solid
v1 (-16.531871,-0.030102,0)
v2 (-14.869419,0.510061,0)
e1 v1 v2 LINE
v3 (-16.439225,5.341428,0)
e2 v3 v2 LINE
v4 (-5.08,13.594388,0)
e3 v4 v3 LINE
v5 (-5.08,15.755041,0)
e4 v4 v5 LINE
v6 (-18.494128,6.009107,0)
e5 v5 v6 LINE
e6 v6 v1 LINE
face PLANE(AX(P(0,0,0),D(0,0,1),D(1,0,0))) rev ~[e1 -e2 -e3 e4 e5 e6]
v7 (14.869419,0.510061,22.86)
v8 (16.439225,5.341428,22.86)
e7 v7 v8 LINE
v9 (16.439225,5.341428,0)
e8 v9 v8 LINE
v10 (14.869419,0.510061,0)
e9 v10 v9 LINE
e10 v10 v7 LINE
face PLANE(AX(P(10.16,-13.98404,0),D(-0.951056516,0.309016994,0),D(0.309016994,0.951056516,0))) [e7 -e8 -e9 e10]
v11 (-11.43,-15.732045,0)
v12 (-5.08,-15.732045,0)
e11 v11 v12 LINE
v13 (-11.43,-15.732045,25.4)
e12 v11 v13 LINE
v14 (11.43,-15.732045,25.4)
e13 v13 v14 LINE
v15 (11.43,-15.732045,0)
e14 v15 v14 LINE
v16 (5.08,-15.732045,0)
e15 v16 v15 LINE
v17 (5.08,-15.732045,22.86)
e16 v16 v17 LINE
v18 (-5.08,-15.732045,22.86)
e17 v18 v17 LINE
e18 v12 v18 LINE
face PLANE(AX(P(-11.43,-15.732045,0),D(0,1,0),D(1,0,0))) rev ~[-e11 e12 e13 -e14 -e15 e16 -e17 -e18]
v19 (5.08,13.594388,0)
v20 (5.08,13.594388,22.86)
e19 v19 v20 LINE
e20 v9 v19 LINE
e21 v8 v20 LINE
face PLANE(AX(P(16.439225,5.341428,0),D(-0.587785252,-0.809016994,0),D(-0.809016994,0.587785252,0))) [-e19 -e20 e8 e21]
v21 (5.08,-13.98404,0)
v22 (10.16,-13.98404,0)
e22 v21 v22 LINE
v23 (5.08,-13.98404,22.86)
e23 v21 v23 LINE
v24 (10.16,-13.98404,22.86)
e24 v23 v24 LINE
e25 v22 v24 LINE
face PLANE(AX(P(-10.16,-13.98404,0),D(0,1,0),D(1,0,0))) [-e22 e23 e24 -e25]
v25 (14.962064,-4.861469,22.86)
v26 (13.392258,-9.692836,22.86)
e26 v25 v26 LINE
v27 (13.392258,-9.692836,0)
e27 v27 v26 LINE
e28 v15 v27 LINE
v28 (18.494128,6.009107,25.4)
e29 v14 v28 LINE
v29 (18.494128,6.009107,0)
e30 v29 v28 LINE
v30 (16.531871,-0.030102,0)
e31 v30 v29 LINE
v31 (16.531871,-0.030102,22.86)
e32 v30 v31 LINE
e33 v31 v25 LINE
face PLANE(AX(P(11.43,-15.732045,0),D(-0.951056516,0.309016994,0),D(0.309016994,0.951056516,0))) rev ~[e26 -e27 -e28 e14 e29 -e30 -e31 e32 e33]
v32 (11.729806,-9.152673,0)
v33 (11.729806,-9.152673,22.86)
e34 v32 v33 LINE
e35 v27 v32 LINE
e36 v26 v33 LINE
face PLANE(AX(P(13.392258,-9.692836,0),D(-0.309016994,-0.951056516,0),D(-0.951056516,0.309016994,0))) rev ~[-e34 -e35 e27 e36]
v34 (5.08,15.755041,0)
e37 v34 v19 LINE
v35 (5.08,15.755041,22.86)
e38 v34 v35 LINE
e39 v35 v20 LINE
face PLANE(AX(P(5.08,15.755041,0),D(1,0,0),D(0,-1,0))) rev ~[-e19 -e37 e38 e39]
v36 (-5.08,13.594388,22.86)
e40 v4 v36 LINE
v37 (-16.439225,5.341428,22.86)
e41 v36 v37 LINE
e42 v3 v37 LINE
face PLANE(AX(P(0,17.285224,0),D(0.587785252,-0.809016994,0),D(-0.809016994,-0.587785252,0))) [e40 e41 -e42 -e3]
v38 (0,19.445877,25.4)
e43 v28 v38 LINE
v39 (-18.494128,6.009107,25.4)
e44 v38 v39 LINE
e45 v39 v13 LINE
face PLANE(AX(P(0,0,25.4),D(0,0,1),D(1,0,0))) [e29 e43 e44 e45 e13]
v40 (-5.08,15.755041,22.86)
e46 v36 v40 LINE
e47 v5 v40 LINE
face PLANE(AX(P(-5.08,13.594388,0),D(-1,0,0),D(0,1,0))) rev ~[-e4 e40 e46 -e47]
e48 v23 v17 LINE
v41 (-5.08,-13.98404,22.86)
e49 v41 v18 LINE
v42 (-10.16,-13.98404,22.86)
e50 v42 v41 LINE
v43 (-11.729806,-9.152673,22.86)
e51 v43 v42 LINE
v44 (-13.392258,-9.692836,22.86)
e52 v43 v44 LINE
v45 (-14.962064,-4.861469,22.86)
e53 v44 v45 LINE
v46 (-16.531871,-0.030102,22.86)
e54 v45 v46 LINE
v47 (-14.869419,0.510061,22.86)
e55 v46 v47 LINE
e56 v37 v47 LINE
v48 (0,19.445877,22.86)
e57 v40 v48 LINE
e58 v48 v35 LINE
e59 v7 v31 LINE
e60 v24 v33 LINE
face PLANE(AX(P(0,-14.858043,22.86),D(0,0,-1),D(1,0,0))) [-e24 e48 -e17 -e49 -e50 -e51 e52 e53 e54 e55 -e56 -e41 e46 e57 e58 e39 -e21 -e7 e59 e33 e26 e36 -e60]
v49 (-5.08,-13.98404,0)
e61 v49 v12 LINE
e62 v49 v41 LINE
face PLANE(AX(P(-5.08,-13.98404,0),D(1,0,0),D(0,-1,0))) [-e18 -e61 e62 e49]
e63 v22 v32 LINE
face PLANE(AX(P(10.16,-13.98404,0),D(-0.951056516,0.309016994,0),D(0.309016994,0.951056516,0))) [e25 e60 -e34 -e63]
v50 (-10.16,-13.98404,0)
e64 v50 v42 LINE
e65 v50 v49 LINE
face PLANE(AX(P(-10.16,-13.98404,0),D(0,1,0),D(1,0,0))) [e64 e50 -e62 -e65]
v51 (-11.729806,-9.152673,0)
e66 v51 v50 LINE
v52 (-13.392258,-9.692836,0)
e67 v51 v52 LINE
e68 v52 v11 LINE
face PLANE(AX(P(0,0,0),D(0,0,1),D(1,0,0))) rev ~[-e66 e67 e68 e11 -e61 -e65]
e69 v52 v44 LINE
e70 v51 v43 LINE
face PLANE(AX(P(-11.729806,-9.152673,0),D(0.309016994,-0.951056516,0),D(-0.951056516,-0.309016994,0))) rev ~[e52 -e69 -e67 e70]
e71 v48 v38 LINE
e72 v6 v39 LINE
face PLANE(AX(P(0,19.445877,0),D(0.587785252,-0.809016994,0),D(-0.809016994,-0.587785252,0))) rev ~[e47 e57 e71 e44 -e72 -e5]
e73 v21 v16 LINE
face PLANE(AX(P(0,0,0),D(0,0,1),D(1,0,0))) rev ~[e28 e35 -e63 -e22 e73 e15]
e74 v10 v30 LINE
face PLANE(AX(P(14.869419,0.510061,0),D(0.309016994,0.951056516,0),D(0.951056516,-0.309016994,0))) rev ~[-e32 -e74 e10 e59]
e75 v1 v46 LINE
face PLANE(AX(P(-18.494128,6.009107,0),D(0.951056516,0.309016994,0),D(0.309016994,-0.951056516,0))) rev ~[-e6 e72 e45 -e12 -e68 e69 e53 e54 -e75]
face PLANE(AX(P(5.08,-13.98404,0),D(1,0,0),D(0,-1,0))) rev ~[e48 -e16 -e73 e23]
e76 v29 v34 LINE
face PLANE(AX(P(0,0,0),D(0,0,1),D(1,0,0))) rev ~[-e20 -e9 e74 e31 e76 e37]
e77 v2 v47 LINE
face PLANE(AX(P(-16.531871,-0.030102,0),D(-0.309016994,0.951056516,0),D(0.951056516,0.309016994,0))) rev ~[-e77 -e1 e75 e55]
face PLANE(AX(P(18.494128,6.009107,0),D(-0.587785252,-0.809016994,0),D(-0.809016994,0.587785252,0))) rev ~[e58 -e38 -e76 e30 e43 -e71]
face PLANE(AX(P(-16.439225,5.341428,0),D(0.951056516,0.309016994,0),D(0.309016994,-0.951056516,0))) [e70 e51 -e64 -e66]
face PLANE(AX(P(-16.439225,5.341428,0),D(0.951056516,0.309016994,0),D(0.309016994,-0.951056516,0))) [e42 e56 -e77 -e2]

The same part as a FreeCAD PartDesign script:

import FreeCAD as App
import Part
import Sketcher
from FreeCAD import Vector
Q = App.Units.Quantity


def add_polygon(sketch, points):
    """Adds a closed chain of lines whose ends are joined by coincident constraints."""
    first, n = sketch.GeometryCount, len(points)
    for a, b in zip(points, points[1:] + points[:1]):
        sketch.addGeometry(Part.LineSegment(App.Vector(*a, 0), App.Vector(*b, 0)), False)
    for i in range(n):
        sketch.addConstraint(Sketcher.Constraint("Coincident", first + i, 2, first + (i + 1) % n, 1))

doc = App.newDocument("Part")
params = doc.addObject("Spreadsheet::Sheet", "Params")
for row, (alias, value) in enumerate([
    ("sketch1_width", "0.9 in"),
    ("pad1_length", "1 in"),
    ("sketch2_width", "0.8 in"),
    ("pocket1_length", "0.9 in"),
    ("sketch3_width", "0.4 in"),
    ("sketch3_length", "0.2 in"),
    ("pocket2_length", "0.9 in"),
], start=1):
    params.set(f"A{row}", alias)
    params.set(f"B{row}", "=" + value)
    params.setAlias(f"B{row}", alias)

body = doc.addObject("PartDesign::Body", "Body")

# Sketch on XY plane
sketch1 = doc.addObject("Sketcher::SketchObject", "Sketch")
body.addObject(sketch1)
sketch1.AttachmentSupport = (doc.XY_Plane, [""])
sketch1.MapMode = "FlatFace"
add_polygon(sketch1, [(-11, -16), (11, -16), (18, 6), (0, 19), (-18, 6)])  # lines 0-4
sketch1.addConstraint([
    Sketcher.Constraint("Horizontal", 0),
    Sketcher.Constraint("Symmetric", 1, 2, 3, 2, -2),
    Sketcher.Constraint("PointOnObject", 2, 2, -2),
    Sketcher.Constraint("Equal", 1, 2),
    Sketcher.Constraint("Equal", 3, 4),
    Sketcher.Constraint("DistanceX", 0, 1, 0, 2, Q("0.9 in")),
    Sketcher.Constraint("Angle", 1, Q("72 deg")),
    Sketcher.Constraint("Angle", 2, Q("144 deg")),
    Sketcher.Constraint("DistanceY", 0, 2, -1, 1, Q("15.732045 mm")),
])
sketch1.setExpression("Constraints[10]", "Params.sketch1_width")
pad1 = doc.addObject("PartDesign::Pad", "Pad")
body.addObject(pad1)
pad1.Profile = sketch1
pad1.setExpression("Length", "Params.pad1_length")

# Sketch on XY plane
sketch2 = doc.addObject("Sketcher::SketchObject", "Sketch001")
body.addObject(sketch2)
sketch2.AttachmentSupport = (doc.XY_Plane, [""])
sketch2.MapMode = "FlatFace"
add_polygon(sketch2, [(10, -14), (16, 5), (0, 17), (-16, 5), (-10, -14)])  # lines 0-4
sketch2.addConstraint([
    Sketcher.Constraint("Horizontal", 4),
    Sketcher.Constraint("Symmetric", 0, 2, 2, 2, -2),
    Sketcher.Constraint("PointOnObject", 1, 2, -2),
    Sketcher.Constraint("Equal", 0, 1),
    Sketcher.Constraint("Equal", 2, 3),
    Sketcher.Constraint("DistanceX", 4, 1, 4, 2, Q("0.8 in")),
    Sketcher.Constraint("Angle", 0, Q("72 deg")),
    Sketcher.Constraint("Angle", 1, Q("144 deg")),
    Sketcher.Constraint("DistanceY", -1, 1, 0, 2, Q("5.341428 mm")),
])
sketch2.setExpression("Constraints[10]", "Params.sketch2_width")
pocket1 = doc.addObject("PartDesign::Pocket", "Pocket")
body.addObject(pocket1)
pocket1.Profile = sketch2
pocket1.setExpression("Length", "Params.pocket1_length")
pocket1.Reversed = True

# Sketch on XY plane
sketch3 = doc.addObject("Sketcher::SketchObject", "Sketch002")
body.addObject(sketch3)
sketch3.AttachmentSupport = (doc.XY_Plane, [""])
sketch3.MapMode = "FlatFace"
add_polygon(sketch3, [(-14.9, 0.5), (-13.3, -4.3), (-11.7, -9.2), (-13.4, -9.7), (-15, -4.9), (-16.5, 0)])  # lines 0-5
add_polygon(sketch3, [(11.7, -9.2), (13.3, -4.3), (14.9, 0.5), (16.5, 0), (15, -4.9), (13.4, -9.7)])  # lines 6-11
add_polygon(sketch3, [(0, 17.3), (-5.1, 13.6), (-5.1, 15.8), (0, 19.4), (5.1, 15.8), (5.1, 13.6)])  # lines 12-17
add_polygon(sketch3, [(-5.1, -15.7), (-5.1, -14), (5.1, -14), (5.1, -15.7)])  # lines 18-21
sketch3.addConstraint([
    Sketcher.Constraint("Vertical", 13),
    Sketcher.Constraint("Vertical", 16),
    Sketcher.Constraint("Vertical", 18),
    Sketcher.Constraint("Horizontal", 19),
    Sketcher.Constraint("Vertical", 20),
    Sketcher.Constraint("Horizontal", 21),
    Sketcher.Constraint("Symmetric", 0, 2, 6, 2, -2),
    Sketcher.Constraint("Symmetric", 5, 2, 7, 2, -2),
    Sketcher.Constraint("Symmetric", 4, 2, 8, 2, -2),
    Sketcher.Constraint("Symmetric", 3, 2, 9, 2, -2),
    Sketcher.Constraint("Symmetric", 2, 2, 10, 2, -2),
    Sketcher.Constraint("Symmetric", 1, 2, 11, 2, -2),
    Sketcher.Constraint("Symmetric", 13, 2, 15, 2, -2),
    Sketcher.Constraint("PointOnObject", 14, 2, -2),
    Sketcher.Constraint("PointOnObject", 17, 2, -2),
    Sketcher.Constraint("Parallel", 0, 1),
    Sketcher.Constraint("Perpendicular", 1, 2),
    Sketcher.Constraint("Perpendicular", 2, 3),
    Sketcher.Constraint("Parallel", 3, 4),
    Sketcher.Constraint("Perpendicular", 4, 5),
    Sketcher.Constraint("Parallel", 12, 14),
    Sketcher.Constraint("Parallel", 15, 17),
    Sketcher.Constraint("Vertical", 13, 2, 18, 2),
    Sketcher.Constraint("Vertical", 16, 2, 19, 2),
    Sketcher.Constraint("Equal", 0, 1),
    Sketcher.Constraint("Equal", 1, 3),
    Sketcher.Constraint("DistanceX", 19, 1, 19, 2, Q("0.4 in")),
    Sketcher.Constraint("Angle", 0, Q("-72 deg")),
    Sketcher.Constraint("Angle", 12, Q("-144 deg")),
    Sketcher.Constraint("Distance", 0, Q("0.2 in")),
    Sketcher.Constraint("DistanceY", 18, 2, 5, 2, Q("14.494101 mm")),
    Sketcher.Constraint("DistanceY", 13, 1, 13, 2, Q("2.160653 mm")),
    Sketcher.Constraint("DistanceY", 18, 1, 18, 2, Q("1.748005 mm")),
    Sketcher.Constraint("DistanceY", 3, 2, -1, 1, Q("4.861469 mm")),
    Sketcher.Constraint("DistanceX", 4, 2, -1, 1, Q("16.531871 mm")),
    Sketcher.Constraint("DistanceX", 5, 2, -1, 1, Q("14.869419 mm")),
    Sketcher.Constraint("DistanceY", -1, 1, 12, 2, Q("13.594388 mm")),
])
sketch3.setExpression("Constraints[48]", "Params.sketch3_width")
sketch3.setExpression("Constraints[51]", "Params.sketch3_length")
pocket2 = doc.addObject("PartDesign::Pocket", "Pocket001")
body.addObject(pocket2)
pocket2.Profile = sketch3
pocket2.setExpression("Length", "Params.pocket2_length")
pocket2.Reversed = True

doc.recompute()
